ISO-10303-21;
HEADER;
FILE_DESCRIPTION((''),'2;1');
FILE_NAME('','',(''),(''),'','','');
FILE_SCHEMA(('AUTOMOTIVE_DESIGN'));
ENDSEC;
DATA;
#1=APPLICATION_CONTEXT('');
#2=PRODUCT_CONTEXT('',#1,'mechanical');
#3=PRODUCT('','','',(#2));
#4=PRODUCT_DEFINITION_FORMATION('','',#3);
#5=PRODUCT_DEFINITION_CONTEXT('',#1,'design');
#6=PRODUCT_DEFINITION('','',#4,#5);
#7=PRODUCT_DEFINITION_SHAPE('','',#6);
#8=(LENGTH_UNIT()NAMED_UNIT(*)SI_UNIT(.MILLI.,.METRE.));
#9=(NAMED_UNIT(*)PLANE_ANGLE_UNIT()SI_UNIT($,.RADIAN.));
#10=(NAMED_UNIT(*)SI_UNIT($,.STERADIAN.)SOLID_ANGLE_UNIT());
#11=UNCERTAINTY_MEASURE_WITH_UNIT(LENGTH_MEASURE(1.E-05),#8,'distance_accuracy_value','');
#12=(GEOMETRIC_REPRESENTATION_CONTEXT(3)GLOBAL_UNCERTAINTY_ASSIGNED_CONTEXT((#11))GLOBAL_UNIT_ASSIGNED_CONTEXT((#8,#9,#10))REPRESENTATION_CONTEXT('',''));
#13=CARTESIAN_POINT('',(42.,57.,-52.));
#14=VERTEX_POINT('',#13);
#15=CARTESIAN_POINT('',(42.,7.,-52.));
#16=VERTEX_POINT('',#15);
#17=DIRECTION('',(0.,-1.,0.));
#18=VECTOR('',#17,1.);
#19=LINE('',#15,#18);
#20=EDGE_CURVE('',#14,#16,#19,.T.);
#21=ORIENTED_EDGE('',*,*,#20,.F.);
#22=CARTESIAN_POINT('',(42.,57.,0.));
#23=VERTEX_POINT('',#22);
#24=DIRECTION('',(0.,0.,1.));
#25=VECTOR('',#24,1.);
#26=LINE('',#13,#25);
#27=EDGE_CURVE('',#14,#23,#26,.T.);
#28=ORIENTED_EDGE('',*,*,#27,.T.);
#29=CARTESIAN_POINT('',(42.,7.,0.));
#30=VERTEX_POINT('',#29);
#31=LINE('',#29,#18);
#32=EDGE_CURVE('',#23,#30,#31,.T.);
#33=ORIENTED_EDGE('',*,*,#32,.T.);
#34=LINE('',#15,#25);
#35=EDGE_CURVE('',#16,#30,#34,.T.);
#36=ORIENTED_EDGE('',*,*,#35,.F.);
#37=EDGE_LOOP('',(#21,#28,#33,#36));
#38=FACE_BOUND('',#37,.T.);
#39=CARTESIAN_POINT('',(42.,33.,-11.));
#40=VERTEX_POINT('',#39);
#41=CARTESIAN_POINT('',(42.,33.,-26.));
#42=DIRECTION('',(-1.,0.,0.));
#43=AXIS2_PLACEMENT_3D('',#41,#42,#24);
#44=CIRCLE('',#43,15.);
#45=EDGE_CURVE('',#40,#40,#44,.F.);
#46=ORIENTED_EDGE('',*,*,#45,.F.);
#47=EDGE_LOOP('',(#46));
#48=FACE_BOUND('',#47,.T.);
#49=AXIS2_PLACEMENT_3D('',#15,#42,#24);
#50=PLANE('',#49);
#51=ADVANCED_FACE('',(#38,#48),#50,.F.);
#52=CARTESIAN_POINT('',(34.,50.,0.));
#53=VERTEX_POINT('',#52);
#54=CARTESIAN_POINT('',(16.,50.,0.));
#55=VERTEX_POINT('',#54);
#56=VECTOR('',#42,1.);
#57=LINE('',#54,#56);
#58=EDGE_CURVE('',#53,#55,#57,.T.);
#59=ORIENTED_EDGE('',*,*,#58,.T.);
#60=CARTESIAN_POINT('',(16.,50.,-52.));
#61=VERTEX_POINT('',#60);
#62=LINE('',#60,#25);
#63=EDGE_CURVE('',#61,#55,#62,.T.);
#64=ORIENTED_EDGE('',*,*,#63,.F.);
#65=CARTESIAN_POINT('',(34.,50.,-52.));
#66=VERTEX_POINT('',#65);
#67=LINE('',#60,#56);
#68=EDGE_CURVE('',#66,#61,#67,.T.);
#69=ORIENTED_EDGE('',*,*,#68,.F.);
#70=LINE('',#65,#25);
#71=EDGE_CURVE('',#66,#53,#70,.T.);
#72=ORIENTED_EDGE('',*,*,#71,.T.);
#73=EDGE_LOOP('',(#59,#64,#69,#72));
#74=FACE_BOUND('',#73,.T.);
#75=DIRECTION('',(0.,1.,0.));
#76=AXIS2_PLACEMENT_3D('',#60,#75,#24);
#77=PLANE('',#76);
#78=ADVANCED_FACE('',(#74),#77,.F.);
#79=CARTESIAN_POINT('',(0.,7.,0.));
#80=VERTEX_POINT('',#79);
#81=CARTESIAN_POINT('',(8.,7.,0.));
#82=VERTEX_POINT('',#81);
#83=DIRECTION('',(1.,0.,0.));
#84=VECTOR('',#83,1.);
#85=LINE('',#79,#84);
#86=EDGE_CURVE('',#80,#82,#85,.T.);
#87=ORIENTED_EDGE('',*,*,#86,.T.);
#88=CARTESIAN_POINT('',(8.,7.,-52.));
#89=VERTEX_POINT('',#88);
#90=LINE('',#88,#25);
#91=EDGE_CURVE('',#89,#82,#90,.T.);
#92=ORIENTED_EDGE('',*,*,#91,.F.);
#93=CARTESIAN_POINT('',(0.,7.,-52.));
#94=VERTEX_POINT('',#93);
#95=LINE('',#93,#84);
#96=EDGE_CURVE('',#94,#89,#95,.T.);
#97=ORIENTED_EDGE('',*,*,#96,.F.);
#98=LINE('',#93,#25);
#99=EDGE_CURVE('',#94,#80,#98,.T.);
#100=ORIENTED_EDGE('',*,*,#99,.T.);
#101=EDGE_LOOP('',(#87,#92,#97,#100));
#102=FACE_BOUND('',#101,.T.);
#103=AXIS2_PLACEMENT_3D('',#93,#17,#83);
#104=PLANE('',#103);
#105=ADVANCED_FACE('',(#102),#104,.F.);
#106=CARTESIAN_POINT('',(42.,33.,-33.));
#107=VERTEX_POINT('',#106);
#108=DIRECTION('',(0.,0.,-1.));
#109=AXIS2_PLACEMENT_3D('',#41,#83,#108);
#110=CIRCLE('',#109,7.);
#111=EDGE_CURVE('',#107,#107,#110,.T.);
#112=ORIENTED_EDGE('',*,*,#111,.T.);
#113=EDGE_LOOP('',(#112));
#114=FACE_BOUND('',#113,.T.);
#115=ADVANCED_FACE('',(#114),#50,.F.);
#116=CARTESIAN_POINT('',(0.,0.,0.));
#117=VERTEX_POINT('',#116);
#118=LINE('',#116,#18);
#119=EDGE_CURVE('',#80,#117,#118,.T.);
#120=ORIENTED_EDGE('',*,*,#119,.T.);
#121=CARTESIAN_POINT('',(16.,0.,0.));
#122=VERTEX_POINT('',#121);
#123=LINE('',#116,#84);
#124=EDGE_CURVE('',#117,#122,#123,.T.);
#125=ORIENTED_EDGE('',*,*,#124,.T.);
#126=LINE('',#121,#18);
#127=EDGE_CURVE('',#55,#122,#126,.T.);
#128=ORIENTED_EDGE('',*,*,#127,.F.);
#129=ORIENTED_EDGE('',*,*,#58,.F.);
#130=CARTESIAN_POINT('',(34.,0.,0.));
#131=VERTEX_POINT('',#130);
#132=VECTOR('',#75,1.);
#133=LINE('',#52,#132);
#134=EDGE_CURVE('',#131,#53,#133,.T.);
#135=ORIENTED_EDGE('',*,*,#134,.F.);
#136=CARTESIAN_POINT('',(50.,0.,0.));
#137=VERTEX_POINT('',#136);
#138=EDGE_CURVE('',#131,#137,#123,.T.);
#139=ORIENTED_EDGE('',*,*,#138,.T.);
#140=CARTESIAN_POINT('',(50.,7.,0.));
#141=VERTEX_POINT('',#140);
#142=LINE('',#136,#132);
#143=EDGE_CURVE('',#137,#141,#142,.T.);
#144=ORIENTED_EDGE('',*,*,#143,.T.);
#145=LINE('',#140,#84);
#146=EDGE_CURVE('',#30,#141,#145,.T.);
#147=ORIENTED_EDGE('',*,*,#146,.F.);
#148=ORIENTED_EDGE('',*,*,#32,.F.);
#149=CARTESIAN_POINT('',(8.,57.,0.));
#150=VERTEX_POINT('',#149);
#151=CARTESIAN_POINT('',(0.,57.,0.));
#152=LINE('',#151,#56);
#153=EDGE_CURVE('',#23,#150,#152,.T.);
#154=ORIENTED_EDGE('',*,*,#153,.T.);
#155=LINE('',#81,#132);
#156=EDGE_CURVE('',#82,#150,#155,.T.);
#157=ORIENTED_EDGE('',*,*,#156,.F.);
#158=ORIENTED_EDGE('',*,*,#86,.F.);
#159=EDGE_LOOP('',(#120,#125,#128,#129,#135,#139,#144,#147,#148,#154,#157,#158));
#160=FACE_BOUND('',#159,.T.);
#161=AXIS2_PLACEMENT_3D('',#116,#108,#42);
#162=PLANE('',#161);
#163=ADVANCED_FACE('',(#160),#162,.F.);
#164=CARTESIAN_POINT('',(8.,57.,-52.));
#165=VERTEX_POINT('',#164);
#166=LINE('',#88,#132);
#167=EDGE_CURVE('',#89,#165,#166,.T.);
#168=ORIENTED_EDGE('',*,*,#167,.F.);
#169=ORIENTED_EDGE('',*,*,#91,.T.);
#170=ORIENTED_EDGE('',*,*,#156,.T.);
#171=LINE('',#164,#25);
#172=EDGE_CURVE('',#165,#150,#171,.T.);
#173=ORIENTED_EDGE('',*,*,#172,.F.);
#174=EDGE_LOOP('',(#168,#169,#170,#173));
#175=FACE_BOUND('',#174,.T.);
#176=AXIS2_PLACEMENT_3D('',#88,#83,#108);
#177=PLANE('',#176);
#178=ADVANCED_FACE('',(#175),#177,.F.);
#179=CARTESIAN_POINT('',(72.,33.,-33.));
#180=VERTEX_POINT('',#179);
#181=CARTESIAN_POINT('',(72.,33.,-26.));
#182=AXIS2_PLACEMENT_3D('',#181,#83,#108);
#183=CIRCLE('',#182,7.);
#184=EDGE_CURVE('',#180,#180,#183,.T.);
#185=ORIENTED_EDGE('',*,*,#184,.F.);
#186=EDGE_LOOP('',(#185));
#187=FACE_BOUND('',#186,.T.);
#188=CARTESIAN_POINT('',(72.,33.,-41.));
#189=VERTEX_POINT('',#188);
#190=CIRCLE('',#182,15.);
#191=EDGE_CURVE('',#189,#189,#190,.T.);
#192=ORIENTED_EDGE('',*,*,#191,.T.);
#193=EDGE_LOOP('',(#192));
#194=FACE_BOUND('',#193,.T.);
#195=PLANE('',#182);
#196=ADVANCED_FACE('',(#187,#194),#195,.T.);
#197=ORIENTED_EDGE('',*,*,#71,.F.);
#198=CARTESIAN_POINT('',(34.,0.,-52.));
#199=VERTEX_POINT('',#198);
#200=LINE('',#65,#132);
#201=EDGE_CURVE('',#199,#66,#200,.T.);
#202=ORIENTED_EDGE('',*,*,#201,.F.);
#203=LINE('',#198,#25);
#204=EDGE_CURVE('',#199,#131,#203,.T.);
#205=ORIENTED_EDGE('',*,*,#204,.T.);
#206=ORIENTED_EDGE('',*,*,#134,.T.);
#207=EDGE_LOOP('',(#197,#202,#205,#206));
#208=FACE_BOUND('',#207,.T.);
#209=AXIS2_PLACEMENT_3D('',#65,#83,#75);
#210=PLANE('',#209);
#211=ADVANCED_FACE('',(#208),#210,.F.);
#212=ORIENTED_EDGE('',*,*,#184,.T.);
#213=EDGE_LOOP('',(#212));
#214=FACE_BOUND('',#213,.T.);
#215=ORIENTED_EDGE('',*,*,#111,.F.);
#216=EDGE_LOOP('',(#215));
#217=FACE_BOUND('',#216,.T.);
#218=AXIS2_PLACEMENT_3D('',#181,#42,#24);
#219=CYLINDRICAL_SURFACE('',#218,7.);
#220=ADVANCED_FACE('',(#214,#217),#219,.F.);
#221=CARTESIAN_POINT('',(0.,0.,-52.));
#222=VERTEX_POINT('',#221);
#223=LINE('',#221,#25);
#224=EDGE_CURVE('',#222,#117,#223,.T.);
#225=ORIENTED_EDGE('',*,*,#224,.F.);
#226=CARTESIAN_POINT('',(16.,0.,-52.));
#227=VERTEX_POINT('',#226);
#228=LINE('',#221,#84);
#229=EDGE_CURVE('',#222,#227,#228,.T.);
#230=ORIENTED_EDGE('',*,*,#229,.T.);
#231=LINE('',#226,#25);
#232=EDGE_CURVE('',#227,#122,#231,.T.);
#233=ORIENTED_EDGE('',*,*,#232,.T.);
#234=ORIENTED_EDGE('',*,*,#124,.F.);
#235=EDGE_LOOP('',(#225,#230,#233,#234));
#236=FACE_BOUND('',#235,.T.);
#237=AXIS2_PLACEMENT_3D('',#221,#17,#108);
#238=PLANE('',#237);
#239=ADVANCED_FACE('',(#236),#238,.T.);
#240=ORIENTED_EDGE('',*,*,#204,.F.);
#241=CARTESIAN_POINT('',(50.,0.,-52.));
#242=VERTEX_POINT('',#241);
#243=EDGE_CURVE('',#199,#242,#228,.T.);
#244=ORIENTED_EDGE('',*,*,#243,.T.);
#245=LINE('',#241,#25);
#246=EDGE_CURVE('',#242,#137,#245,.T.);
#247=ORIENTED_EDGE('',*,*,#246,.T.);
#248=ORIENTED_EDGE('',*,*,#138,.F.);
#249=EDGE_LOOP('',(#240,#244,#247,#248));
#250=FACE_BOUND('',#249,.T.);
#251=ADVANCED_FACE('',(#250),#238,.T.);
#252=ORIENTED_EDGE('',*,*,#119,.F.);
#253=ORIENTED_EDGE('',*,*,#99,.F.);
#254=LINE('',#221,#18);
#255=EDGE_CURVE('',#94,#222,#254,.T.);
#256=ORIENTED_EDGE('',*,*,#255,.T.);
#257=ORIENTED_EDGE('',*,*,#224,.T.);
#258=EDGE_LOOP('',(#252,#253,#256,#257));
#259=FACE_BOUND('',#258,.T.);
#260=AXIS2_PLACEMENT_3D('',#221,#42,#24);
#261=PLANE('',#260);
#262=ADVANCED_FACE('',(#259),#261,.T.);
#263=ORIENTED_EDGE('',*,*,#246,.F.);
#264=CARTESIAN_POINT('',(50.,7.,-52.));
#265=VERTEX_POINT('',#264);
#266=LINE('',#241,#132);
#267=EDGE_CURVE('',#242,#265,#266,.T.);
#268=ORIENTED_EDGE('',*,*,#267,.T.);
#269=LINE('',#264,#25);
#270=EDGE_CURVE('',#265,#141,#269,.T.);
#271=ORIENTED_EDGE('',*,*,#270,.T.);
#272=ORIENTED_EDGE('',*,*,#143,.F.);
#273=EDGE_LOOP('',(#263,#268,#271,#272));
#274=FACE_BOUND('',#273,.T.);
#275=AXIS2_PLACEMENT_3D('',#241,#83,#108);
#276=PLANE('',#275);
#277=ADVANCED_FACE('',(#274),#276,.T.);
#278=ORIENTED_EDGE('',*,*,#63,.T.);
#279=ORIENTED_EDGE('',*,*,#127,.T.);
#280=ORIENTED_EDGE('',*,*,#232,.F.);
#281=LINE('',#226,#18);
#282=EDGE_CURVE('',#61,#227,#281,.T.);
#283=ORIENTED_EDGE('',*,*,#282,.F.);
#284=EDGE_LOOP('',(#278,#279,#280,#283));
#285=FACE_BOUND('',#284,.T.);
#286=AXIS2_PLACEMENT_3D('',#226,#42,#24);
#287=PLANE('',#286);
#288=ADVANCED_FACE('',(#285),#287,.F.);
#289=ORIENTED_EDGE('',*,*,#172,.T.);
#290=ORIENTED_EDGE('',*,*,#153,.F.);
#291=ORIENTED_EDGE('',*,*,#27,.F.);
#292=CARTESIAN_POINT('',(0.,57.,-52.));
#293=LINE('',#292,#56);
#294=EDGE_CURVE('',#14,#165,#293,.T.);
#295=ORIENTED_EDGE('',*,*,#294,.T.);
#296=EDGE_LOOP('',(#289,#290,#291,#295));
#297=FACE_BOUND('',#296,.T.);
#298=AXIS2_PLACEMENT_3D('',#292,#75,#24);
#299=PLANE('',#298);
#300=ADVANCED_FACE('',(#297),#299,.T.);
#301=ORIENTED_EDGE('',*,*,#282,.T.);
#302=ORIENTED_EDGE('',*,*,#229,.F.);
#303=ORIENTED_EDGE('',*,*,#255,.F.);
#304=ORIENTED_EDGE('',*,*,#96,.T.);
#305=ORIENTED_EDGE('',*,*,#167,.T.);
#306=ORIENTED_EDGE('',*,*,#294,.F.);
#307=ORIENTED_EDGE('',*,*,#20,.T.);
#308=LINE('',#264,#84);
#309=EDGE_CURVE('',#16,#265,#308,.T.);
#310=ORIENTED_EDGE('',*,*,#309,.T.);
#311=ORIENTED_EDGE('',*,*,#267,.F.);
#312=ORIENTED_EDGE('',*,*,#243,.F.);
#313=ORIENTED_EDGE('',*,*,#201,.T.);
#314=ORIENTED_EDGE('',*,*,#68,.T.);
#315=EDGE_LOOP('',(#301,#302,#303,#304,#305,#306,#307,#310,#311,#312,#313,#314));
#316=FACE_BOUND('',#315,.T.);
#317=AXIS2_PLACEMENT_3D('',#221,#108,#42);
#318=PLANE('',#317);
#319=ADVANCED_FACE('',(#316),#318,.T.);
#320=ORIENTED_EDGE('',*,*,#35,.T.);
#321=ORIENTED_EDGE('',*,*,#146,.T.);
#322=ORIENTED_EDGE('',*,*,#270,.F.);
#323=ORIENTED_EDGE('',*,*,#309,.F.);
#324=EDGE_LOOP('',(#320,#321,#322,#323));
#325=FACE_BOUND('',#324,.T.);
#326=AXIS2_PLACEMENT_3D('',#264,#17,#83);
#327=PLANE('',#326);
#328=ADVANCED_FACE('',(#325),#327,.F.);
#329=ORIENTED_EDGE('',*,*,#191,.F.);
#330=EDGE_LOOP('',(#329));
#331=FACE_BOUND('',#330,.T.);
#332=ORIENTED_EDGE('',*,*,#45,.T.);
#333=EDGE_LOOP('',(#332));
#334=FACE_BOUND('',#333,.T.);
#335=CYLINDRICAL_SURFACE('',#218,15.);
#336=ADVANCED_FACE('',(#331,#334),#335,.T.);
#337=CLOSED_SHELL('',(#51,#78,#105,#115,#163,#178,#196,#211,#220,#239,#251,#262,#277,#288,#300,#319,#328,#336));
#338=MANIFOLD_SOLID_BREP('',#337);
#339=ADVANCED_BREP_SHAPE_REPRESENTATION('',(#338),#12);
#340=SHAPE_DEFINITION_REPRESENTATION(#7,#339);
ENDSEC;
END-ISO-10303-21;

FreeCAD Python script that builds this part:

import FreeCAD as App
import Part
import Sketcher
from FreeCAD import Vector

doc = App.newDocument("Part")
body = doc.addObject("PartDesign::Body", "Body")

sketch1 = body.newObject("Sketcher::SketchObject", "Sketch")
sketch1.AttachmentSupport = (doc.getObject("XY_Plane"), [""])
sketch1.MapMode = "FlatFace"
sketch1.addGeometry([
    Part.LineSegment(Vector(0, 57, 0), Vector(0, 0, 0)),
    Part.LineSegment(Vector(0, 0, 0), Vector(50, 0, 0)),
    Part.LineSegment(Vector(50, 0, 0), Vector(50, 57, 0)),
    Part.LineSegment(Vector(50, 57, 0), Vector(0, 57, 0)),
], False)
sketch1.addConstraint([
    Sketcher.Constraint("Coincident", 0, 2, 1, 1),
    Sketcher.Constraint("Coincident", 1, 2, 2, 1),
    Sketcher.Constraint("Coincident", 2, 2, 3, 1),
    Sketcher.Constraint("Coincident", 3, 2, 0, 1),
    Sketcher.Constraint("Vertical", 0),
    Sketcher.Constraint("Horizontal", 1),
    Sketcher.Constraint("Vertical", 2),
    Sketcher.Constraint("Horizontal", 3),
    Sketcher.Constraint("Coincident", 0, 2, -1, 1),
    Sketcher.Constraint("DistanceX", 1, 1, 1, 2, 50.0),
    Sketcher.Constraint("DistanceY", 0, 2, 0, 1, 57.0),
])
pad1 = body.newObject("PartDesign::Pad", "Pad")
pad1.Profile = sketch1
pad1.Length = 52
pad1.Reversed = True

sketch2 = body.newObject("Sketcher::SketchObject", "Sketch001")
sketch2.AttachmentSupport = (doc.getObject("XY_Plane"), [""])
sketch2.MapMode = "FlatFace"
sketch2.addGeometry([
    Part.LineSegment(Vector(16, 50, 0), Vector(16, 0, 0)),
    Part.LineSegment(Vector(16, 0, 0), Vector(34, 0, 0)),
    Part.LineSegment(Vector(34, 0, 0), Vector(34, 50, 0)),
    Part.LineSegment(Vector(34, 50, 0), Vector(16, 50, 0)),
], False)
sketch2.addConstraint([
    Sketcher.Constraint("Coincident", 0, 2, 1, 1),
    Sketcher.Constraint("Coincident", 1, 2, 2, 1),
    Sketcher.Constraint("Coincident", 2, 2, 3, 1),
    Sketcher.Constraint("Coincident", 3, 2, 0, 1),
    Sketcher.Constraint("Vertical", 0),
    Sketcher.Constraint("Horizontal", 1),
    Sketcher.Constraint("Vertical", 2),
    Sketcher.Constraint("Horizontal", 3),
    Sketcher.Constraint("PointOnObject", 0, 2, -1),
    Sketcher.Constraint("DistanceX", 1, 1, 1, 2, 18.0),
    Sketcher.Constraint("DistanceY", 0, 2, 0, 1, 50.0),
    Sketcher.Constraint("DistanceX", -1, 1, 0, 2, 16.0),
])
pocket1 = body.newObject("PartDesign::Pocket", "Pocket")
pocket1.Profile = sketch2
pocket1.Length = 52

sketch3 = body.newObject("Sketcher::SketchObject", "Sketch002")
sketch3.AttachmentSupport = (doc.getObject("XY_Plane"), [""])
sketch3.MapMode = "FlatFace"
sketch3.addGeometry([
    Part.LineSegment(Vector(42, 57, 0), Vector(42, 7, 0)),
    Part.LineSegment(Vector(42, 7, 0), Vector(50, 7, 0)),
    Part.LineSegment(Vector(50, 7, 0), Vector(50, 57, 0)),
    Part.LineSegment(Vector(50, 57, 0), Vector(42, 57, 0)),
    Part.LineSegment(Vector(0, 57, 0), Vector(0, 7, 0)),
    Part.LineSegment(Vector(0, 7, 0), Vector(8, 7, 0)),
    Part.LineSegment(Vector(8, 7, 0), Vector(8, 57, 0)),
    Part.LineSegment(Vector(8, 57, 0), Vector(0, 57, 0)),
], False)
sketch3.addConstraint([
    Sketcher.Constraint("Coincident", 0, 2, 1, 1),
    Sketcher.Constraint("Coincident", 1, 2, 2, 1),
    Sketcher.Constraint("Coincident", 2, 2, 3, 1),
    Sketcher.Constraint("Coincident", 3, 2, 0, 1),
    Sketcher.Constraint("Coincident", 4, 2, 5, 1),
    Sketcher.Constraint("Coincident", 5, 2, 6, 1),
    Sketcher.Constraint("Coincident", 6, 2, 7, 1),
    Sketcher.Constraint("Coincident", 7, 2, 4, 1),
    Sketcher.Constraint("Vertical", 0),
    Sketcher.Constraint("Horizontal", 1),
    Sketcher.Constraint("Vertical", 2),
    Sketcher.Constraint("Horizontal", 3),
    Sketcher.Constraint("Vertical", 4),
    Sketcher.Constraint("Horizontal", 5),
    Sketcher.Constraint("Vertical", 6),
    Sketcher.Constraint("Horizontal", 7),
    Sketcher.Constraint("PointOnObject", 4, 2, -2),
    Sketcher.Constraint("Horizontal", 1, 2, 4, 2),
    Sketcher.Constraint("Horizontal", 3, 2, 6, 2),
    Sketcher.Constraint("Equal", 3, 5),
    Sketcher.Constraint("DistanceX", 1, 1, 1, 2, 8.0),
    Sketcher.Constraint("DistanceY", 0, 2, 0, 1, 50.0),
    Sketcher.Constraint("DistanceX", -1, 1, 0, 2, 42.0),
    Sketcher.Constraint("DistanceY", -1, 1, 0, 2, 7.0),
])
pocket2 = body.newObject("PartDesign::Pocket", "Pocket001")
pocket2.Profile = sketch3
pocket2.Length = 52

sketch4 = body.newObject("Sketcher::SketchObject", "Sketch003")
sketch4.AttachmentSupport = (doc.getObject("YZ_Plane"), [""])
sketch4.MapMode = "FlatFace"
sketch4.AttachmentOffset = App.Placement(Vector(0, 0, 42), App.Rotation())
sketch4.addGeometry([
    Part.Circle(Vector(33, -26, 0), Vector(0, 0, 1), 15),
    Part.Circle(Vector(33, -26, 0), Vector(0, 0, 1), 7),
], False)
sketch4.addConstraint([
    Sketcher.Constraint("Coincident", 1, 3, 0, 3),
    Sketcher.Constraint("Diameter", 0, 30.0),
    Sketcher.Constraint("Diameter", 1, 14.0),
    Sketcher.Constraint("DistanceX", -1, 1, 0, 3, 33.0),
    Sketcher.Constraint("DistanceY", 0, 3, -1, 1, 26.0),
])
pad2 = body.newObject("PartDesign::Pad", "Pad001")
pad2.Profile = sketch4
pad2.Length = 30

doc.recompute()
